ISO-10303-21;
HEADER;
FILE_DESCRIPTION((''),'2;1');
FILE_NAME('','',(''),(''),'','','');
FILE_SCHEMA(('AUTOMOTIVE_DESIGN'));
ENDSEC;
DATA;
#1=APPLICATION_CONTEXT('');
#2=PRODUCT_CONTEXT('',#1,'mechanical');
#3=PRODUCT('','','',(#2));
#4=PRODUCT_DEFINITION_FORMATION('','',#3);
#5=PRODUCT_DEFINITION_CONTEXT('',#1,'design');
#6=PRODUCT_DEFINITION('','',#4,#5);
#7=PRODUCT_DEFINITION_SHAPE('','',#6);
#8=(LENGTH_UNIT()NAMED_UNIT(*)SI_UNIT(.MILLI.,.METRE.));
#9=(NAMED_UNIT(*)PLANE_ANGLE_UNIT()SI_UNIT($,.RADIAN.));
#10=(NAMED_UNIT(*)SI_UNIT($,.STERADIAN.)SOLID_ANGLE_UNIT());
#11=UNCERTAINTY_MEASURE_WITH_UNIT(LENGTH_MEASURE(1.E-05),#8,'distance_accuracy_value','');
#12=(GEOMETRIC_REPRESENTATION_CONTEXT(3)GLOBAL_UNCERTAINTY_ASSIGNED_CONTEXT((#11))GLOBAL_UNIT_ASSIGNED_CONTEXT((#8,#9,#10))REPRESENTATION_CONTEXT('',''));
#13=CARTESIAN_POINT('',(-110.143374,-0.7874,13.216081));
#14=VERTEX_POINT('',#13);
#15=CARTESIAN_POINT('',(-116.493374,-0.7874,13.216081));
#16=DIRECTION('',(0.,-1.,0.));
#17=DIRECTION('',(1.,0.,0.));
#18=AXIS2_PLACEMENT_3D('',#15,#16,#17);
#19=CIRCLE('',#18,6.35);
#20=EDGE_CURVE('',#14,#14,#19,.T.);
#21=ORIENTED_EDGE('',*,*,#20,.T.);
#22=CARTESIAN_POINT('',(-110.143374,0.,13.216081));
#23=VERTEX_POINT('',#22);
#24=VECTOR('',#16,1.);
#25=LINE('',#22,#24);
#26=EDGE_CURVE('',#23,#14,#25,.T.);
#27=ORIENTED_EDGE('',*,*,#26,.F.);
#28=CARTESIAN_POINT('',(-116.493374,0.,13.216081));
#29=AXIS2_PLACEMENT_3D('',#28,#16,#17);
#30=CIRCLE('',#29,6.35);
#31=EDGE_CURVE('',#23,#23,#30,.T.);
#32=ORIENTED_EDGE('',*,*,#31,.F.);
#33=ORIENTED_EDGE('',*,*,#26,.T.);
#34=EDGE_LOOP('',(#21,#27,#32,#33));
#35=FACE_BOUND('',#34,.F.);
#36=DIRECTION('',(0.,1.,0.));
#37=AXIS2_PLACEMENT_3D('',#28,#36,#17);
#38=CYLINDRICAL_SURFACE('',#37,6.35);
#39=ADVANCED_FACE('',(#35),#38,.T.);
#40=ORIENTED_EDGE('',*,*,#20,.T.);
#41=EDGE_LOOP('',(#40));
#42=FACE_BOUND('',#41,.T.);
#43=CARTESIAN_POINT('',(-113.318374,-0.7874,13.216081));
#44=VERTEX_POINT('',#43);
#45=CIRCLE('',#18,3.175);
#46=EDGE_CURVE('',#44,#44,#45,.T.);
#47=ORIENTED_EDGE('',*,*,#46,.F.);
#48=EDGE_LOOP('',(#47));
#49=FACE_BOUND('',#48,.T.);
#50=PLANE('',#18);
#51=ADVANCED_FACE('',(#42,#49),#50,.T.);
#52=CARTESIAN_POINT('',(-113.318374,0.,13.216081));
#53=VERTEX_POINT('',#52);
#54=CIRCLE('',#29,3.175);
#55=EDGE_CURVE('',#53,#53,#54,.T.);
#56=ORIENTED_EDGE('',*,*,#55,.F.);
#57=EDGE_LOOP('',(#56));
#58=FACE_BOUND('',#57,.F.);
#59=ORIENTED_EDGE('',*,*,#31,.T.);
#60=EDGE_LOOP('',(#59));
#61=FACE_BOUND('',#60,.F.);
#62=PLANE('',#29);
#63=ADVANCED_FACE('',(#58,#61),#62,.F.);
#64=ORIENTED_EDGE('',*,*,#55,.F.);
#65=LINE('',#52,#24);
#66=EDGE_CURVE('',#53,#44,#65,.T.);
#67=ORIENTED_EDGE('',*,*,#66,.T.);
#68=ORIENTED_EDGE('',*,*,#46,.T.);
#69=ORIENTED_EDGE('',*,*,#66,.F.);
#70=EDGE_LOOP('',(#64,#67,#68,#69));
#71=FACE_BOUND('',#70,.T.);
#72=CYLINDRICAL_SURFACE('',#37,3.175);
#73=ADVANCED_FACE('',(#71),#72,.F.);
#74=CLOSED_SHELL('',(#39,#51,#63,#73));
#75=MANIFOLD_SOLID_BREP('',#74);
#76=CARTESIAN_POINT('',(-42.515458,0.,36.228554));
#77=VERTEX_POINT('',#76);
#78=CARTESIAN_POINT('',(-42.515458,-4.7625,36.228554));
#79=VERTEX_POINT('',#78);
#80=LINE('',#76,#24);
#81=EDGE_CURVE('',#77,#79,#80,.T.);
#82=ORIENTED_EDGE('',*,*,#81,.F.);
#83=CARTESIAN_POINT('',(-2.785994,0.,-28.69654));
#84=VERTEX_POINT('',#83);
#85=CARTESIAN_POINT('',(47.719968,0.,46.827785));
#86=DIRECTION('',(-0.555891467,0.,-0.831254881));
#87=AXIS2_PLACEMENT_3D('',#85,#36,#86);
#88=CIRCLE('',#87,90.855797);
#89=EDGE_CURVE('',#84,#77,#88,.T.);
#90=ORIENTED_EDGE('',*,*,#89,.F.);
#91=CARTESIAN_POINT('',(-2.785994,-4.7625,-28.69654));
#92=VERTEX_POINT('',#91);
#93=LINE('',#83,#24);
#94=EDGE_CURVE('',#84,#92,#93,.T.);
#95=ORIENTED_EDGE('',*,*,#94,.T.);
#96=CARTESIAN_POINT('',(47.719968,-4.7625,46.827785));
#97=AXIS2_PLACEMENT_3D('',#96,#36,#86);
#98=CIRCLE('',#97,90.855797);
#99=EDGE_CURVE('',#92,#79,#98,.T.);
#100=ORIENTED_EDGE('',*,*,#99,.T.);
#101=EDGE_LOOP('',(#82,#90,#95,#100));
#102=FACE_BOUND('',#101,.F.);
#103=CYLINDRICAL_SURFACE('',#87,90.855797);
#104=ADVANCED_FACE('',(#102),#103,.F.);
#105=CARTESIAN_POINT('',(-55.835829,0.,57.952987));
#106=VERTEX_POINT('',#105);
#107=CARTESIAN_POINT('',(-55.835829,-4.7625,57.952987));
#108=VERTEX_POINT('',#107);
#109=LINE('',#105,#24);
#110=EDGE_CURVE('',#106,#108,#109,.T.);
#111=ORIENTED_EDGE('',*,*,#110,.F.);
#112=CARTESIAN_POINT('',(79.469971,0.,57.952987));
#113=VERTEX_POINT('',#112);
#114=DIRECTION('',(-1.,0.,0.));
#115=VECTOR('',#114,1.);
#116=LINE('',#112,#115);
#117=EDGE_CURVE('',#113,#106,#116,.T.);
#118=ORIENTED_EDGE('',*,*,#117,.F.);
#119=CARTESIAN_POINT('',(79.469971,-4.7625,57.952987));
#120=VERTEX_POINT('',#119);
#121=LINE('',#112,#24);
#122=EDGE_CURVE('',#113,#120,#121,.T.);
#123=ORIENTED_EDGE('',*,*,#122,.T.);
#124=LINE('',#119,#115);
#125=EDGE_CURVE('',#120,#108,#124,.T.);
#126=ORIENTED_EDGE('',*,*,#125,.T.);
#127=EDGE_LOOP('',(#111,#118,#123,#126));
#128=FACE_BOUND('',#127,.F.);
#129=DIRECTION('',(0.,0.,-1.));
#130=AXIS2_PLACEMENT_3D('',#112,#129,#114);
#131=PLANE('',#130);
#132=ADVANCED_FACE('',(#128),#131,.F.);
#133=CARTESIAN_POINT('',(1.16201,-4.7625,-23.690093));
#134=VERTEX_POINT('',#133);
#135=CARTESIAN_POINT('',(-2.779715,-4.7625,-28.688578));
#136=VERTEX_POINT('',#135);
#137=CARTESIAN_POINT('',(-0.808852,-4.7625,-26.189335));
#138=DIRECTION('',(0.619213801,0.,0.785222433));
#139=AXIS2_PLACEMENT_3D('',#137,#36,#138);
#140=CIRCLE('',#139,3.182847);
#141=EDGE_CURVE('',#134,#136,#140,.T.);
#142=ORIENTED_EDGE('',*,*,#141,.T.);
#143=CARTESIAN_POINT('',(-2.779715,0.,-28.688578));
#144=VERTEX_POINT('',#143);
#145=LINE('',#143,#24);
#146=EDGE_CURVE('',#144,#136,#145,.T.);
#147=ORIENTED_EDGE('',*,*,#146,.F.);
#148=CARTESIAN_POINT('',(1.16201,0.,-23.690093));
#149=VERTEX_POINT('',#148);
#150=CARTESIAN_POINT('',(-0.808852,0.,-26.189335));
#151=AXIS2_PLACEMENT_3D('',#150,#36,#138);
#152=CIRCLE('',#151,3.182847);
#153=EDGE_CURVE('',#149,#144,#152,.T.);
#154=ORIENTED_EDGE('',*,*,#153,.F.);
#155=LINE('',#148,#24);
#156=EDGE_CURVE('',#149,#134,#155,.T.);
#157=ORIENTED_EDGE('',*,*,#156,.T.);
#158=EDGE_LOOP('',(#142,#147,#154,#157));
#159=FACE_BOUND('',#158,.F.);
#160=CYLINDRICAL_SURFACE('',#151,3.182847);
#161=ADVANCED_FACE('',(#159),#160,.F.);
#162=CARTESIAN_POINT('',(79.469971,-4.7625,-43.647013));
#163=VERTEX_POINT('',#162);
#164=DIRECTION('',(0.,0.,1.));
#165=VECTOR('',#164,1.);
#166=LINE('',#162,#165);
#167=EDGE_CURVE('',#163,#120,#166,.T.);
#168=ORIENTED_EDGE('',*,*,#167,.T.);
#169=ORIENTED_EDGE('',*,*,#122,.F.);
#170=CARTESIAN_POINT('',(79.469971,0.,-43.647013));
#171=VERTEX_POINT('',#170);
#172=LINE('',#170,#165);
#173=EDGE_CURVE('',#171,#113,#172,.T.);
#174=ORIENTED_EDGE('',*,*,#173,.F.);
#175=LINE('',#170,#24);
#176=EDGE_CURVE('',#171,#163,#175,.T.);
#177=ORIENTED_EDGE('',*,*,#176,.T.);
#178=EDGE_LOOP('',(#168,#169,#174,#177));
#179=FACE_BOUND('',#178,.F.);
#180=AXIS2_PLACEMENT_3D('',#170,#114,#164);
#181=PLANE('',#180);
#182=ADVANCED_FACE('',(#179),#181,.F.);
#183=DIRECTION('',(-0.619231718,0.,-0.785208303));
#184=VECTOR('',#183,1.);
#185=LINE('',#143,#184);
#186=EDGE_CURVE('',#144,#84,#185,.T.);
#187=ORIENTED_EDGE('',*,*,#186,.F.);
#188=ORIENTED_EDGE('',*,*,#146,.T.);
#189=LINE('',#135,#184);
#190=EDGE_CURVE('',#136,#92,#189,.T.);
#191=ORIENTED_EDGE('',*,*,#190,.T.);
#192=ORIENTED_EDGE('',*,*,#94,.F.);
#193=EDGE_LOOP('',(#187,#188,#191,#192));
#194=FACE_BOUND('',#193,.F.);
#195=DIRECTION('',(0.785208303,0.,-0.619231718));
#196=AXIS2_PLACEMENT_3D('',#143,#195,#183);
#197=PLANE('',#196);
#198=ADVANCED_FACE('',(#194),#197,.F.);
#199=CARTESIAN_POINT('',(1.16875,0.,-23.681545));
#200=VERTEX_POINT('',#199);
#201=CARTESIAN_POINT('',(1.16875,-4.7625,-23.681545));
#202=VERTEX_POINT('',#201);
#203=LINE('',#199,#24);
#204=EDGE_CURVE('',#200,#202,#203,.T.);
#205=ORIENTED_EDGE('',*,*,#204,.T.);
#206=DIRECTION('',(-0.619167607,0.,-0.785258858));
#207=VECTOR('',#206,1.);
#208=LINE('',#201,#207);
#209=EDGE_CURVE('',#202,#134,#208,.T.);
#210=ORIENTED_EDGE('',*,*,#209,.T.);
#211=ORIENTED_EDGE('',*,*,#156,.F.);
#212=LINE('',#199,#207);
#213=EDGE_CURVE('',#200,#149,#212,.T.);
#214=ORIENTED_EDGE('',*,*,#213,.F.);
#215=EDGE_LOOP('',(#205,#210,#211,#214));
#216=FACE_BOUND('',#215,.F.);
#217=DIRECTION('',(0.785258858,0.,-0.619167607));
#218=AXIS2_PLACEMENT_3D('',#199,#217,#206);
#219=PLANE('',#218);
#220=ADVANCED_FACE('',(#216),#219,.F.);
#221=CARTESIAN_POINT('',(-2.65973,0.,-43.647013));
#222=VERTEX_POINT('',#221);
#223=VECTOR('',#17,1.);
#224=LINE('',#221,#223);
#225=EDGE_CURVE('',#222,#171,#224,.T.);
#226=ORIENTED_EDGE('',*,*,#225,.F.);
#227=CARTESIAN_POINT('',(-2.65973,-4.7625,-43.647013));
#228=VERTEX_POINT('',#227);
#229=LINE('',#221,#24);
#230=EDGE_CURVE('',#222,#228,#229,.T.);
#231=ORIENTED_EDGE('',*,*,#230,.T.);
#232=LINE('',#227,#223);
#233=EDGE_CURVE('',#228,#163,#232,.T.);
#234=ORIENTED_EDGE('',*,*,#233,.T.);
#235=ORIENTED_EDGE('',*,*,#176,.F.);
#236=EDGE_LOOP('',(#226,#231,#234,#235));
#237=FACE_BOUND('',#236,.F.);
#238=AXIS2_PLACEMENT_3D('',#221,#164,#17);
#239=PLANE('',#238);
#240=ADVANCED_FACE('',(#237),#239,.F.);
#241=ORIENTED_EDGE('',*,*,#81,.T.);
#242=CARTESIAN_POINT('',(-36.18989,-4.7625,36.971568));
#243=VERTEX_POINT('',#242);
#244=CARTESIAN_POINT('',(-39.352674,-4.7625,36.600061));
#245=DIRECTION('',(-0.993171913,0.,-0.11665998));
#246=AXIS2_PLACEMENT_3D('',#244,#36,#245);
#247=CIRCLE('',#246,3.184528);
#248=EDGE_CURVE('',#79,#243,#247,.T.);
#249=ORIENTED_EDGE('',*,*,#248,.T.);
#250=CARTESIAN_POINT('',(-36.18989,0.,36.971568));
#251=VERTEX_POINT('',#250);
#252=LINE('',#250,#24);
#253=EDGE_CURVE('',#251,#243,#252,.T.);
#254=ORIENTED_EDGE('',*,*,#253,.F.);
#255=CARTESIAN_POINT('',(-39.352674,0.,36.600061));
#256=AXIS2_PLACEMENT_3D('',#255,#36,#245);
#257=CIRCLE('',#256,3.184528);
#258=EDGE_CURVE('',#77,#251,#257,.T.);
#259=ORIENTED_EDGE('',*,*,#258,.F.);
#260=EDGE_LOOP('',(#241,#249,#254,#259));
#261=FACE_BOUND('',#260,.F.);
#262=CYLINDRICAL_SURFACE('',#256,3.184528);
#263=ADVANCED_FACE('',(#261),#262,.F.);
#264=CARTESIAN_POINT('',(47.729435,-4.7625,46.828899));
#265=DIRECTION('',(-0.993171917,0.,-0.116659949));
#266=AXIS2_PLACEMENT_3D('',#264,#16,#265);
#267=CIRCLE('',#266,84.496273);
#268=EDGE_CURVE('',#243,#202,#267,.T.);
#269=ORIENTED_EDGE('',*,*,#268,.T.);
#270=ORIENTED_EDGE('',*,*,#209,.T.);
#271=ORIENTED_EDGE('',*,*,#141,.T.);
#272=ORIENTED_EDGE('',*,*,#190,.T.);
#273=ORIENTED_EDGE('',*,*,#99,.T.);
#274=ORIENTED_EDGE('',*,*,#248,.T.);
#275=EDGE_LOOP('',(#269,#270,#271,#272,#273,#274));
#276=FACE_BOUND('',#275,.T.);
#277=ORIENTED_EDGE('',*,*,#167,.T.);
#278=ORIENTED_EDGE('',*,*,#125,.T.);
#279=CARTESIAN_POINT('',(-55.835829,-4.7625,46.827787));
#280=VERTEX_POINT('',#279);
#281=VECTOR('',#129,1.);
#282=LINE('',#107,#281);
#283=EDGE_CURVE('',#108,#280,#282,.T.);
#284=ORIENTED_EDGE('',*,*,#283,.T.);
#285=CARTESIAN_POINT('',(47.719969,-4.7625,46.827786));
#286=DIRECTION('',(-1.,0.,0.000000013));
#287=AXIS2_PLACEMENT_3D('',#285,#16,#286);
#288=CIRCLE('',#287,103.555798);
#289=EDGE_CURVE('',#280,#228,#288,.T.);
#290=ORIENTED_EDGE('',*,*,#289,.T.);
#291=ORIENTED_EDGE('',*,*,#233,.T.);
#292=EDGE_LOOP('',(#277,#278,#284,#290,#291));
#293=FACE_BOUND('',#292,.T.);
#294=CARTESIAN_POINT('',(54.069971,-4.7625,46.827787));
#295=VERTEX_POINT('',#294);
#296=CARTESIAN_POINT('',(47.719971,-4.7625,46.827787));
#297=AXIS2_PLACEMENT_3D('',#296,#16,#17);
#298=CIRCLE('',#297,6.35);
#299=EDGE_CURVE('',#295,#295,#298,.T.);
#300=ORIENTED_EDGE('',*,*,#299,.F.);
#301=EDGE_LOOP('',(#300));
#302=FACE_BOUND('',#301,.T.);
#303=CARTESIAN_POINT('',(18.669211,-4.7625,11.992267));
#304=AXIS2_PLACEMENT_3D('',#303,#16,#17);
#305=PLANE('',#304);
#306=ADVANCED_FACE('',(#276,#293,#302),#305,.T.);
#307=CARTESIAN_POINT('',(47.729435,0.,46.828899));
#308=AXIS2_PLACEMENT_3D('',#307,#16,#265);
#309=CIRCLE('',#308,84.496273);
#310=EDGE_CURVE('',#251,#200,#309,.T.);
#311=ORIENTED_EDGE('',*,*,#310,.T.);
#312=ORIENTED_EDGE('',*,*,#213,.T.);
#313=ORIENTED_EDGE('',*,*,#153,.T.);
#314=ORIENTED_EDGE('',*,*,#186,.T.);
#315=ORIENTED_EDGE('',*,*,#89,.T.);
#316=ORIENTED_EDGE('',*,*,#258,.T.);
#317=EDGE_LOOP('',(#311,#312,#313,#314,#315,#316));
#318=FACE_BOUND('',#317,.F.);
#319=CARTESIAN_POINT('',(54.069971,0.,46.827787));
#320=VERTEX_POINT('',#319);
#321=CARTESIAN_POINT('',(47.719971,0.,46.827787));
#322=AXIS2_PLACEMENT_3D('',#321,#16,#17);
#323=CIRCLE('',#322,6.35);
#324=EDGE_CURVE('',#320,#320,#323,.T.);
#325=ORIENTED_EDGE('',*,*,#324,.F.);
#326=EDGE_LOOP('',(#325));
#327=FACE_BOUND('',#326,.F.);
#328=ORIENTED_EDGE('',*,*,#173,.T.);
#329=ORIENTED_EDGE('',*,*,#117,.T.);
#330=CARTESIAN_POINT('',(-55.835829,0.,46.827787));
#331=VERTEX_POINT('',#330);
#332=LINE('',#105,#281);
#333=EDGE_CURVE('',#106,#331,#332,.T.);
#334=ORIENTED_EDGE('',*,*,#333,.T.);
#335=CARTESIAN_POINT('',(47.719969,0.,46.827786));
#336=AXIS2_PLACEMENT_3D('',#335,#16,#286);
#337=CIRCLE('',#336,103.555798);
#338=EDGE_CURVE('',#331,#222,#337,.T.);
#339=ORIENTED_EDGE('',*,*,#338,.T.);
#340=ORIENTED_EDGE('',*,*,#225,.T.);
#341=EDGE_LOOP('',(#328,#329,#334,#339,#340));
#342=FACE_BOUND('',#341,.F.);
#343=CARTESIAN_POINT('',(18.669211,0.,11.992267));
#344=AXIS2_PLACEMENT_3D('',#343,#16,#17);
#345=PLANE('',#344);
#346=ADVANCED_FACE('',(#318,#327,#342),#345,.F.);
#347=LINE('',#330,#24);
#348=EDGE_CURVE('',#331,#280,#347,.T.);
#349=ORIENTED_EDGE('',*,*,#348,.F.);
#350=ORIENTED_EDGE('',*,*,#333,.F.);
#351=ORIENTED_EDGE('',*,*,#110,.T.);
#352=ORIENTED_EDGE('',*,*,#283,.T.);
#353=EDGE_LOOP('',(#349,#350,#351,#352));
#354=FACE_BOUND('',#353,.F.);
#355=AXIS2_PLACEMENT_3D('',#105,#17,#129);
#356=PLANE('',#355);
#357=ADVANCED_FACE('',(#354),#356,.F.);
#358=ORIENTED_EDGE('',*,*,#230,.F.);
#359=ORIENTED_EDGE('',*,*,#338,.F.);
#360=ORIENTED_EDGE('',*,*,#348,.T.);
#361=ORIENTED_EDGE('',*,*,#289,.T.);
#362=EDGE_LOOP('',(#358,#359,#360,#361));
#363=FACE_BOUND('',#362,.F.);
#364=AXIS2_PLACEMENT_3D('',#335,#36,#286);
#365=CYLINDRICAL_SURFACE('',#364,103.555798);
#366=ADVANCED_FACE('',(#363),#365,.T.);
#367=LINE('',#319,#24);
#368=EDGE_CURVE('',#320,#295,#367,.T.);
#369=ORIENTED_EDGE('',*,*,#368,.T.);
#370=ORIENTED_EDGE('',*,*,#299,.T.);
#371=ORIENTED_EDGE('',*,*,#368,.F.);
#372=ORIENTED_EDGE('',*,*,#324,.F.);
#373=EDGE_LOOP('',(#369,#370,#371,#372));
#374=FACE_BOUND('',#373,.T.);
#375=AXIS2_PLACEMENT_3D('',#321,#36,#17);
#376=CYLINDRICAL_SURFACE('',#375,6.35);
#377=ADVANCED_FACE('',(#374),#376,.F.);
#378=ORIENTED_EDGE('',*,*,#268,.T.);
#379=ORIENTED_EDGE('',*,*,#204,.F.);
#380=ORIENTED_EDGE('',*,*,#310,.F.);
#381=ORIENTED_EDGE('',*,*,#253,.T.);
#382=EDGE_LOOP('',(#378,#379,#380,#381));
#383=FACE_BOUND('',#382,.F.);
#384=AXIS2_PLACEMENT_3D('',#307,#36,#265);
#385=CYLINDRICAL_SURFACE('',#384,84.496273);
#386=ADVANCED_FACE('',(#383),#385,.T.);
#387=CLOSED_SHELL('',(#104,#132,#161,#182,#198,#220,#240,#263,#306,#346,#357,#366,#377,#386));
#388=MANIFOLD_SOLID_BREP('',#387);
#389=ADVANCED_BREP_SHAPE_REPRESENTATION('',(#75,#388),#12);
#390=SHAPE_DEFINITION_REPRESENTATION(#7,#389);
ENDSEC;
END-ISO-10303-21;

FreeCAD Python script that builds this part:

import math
import FreeCAD as App
import Part
import Sketcher

V = App.Vector
Q = App.Units.Quantity

doc = App.newDocument("Part")
params = doc.addObject("Spreadsheet::Sheet", "Params")
for row, (alias, value) in enumerate([
    ("sketch1_diameter", "0.5 in"),
    ("sketch1_height", "4 in"),
    ("sketch1_radius", "4.0769999 in"),
    ("sketch1_radius2", "3.5769999 in"),
    ("sketch1_width", "5.327 in"),
    ("pad1_length", "0.1875 in"),
    ("sketch2_diameter", "0.5 in"),
    ("sketch2_diameter2", "0.25 in"),
    ("pad2_length", "0.031 in"),
], start=1):
    params.set(f"A{row}", alias)
    params.set(f"B{row}", "=" + value)
    params.setAlias(f"B{row}", alias)

body = doc.addObject("PartDesign::Body", "Body")

# Sketch on XZ plane
sketch1 = body.newObject("Sketcher::SketchObject", "Sketch")
sketch1.AttachmentSupport = (doc.getObject("XZ_Plane"), [""])
sketch1.MapMode = "FlatFace"
sketch1.addGeometry([
    Part.LineSegment(V(-2.65973, -43.647013, 0), V(79.469971, -43.647013, 0)),  # 0
    Part.LineSegment(V(79.469971, -43.647013, 0), V(79.469971, 57.952987, 0)),  # 1
    Part.LineSegment(V(79.469971, 57.952987, 0), V(-55.835829, 57.952987, 0)),  # 2
    Part.LineSegment(V(-55.835829, 57.952987, 0), V(-55.835829, 46.827787, 0)),  # 3
    Part.ArcOfCircle(Part.Circle(V(47.719969, 46.827786, 0), V(0, 0, 1), 103.555798), math.radians(179.999999), math.radians(240.88933)),  # 4
    Part.LineSegment(V(-2.779715, -28.688578, 0), V(-2.785994, -28.69654, 0)),  # 5
    Part.ArcOfCircle(Part.Circle(V(47.719968, 46.827785, 0), V(0, 0, 1), 90.855797), math.radians(-173.300624), math.radians(-123.772139)),  # 6
    Part.ArcOfCircle(Part.Circle(V(-39.352674, 36.600061, 0), V(0, 0, 1), 3.184528), math.radians(6.699379), math.radians(186.699379)),  # 7
    Part.ArcOfCircle(Part.Circle(V(47.729435, 46.828899, 0), V(0, 0, 1), 84.496273), math.radians(-173.300622), math.radians(-123.438276)),  # 8
    Part.LineSegment(V(1.16875, -23.681545, 0), V(1.16201, -23.690093, 0)),  # 9
    Part.ArcOfCircle(Part.Circle(V(-0.808852, -26.189335, 0), V(0, 0, 1), 3.182847), math.radians(-128.258745), math.radians(51.741255)),  # 10
    Part.Circle(V(47.719971, 46.827787, 0), V(0, 0, 1), 6.35),  # 11
], False)
sketch1.addConstraint([
    Sketcher.Constraint("Coincident", 0, 2, 1, 1),
    Sketcher.Constraint("Coincident", 1, 2, 2, 1),
    Sketcher.Constraint("Coincident", 2, 2, 3, 1),
    Sketcher.Constraint("Tangent", 3, 2, 4, 1),
    Sketcher.Constraint("Coincident", 4, 2, 0, 1),
    Sketcher.Constraint("Coincident", 5, 2, 6, 2),
    Sketcher.Constraint("Tangent", 6, 1, 7, 2),
    Sketcher.Constraint("Tangent", 7, 1, 8, 1),
    Sketcher.Constraint("Coincident", 8, 2, 9, 1),
    Sketcher.Constraint("Coincident", 9, 2, 10, 2),
    Sketcher.Constraint("Coincident", 10, 1, 5, 1),
    Sketcher.Constraint("Horizontal", 0),
    Sketcher.Constraint("Vertical", 1),
    Sketcher.Constraint("Horizontal", 2),
    Sketcher.Constraint("Vertical", 3),
    Sketcher.Constraint("Coincident", 6, 3, 4, 3),
    Sketcher.Constraint("Coincident", 11, 3, 4, 3),
    Sketcher.Constraint("Diameter", 11, Q("0.5 in")),
    Sketcher.Constraint("DistanceY", 1, 1, 1, 2, Q("4 in")),
    Sketcher.Constraint("Radius", 4, Q("4.0769999 in")),
    Sketcher.Constraint("Radius", 6, Q("3.5769999 in")),
    Sketcher.Constraint("DistanceX", 2, 2, 2, 1, Q("5.327 in")),
    Sketcher.Constraint("DistanceY", 3, 2, 3, 1, Q("0.438 in")),
    Sketcher.Constraint("Radius", 7, 3.184528),
    Sketcher.Constraint("Radius", 8, 84.496273),
    Sketcher.Constraint("Radius", 10, 3.182847),
    Sketcher.Constraint("DistanceY", -1, 1, 8, 3, 46.828899),
    Sketcher.Constraint("DistanceY", 5, 2, 7, 3, 65.296601),
    Sketcher.Constraint("DistanceX", 7, 1, 9, 2, 37.3519),
    Sketcher.Constraint("Distance", 5, 0.01014),
    Sketcher.Constraint("DistanceX", -1, 1, 4, 3, 47.719969),
    Sketcher.Constraint("DistanceY", -1, 1, 7, 3, 36.600061),
    Sketcher.Constraint("DistanceX", 6, 1, -1, 1, 42.515458),
    Sketcher.Constraint("DistanceX", -1, 1, 8, 2, 1.16875),
    Sketcher.Constraint("DistanceX", 7, 3, 10, 3, 38.543821),
    Sketcher.Constraint("DistanceX", 5, 2, 10, 1, 0.006279),
])
sketch1.setExpression("Constraints[17]", "Params.sketch1_diameter")
sketch1.setExpression("Constraints[18]", "Params.sketch1_height")
sketch1.setExpression("Constraints[19]", "Params.sketch1_radius")
sketch1.setExpression("Constraints[20]", "Params.sketch1_radius2")
sketch1.setExpression("Constraints[21]", "Params.sketch1_width")
pad1 = body.newObject("PartDesign::Pad", "Pad")
pad1.Profile = sketch1
pad1.setExpression("Length", "Params.pad1_length")
body2 = doc.addObject("PartDesign::Body", "Body001")

# Sketch on XZ plane
sketch2 = body2.newObject("Sketcher::SketchObject", "Sketch001")
sketch2.AttachmentSupport = (doc.getObject("XZ_Plane001"), [""])
sketch2.MapMode = "FlatFace"
sketch2.addGeometry([
    Part.Circle(V(-116.5, 13.2, 0), V(0, 0, 1), 6.3),
    Part.Circle(V(-116.5, 13.2, 0), V(0, 0, 1), 3.2),
], False)
sketch2.addConstraint([
    Sketcher.Constraint("Coincident", 1, 3, 0, 3),
    Sketcher.Constraint("Diameter", 0, Q("0.5 in")),
    Sketcher.Constraint("Diameter", 1, Q("0.25 in")),
    Sketcher.Constraint("DistanceY", -1, 1, 0, 3, 13.216081),
    Sketcher.Constraint("DistanceX", 0, 3, -1, 1, 116.493374),
])
sketch2.setExpression("Constraints[1]", "Params.sketch2_diameter")
sketch2.setExpression("Constraints[2]", "Params.sketch2_diameter2")
pad2 = body2.newObject("PartDesign::Pad", "Pad001")
pad2.Profile = sketch2
pad2.setExpression("Length", "Params.pad2_length")

doc.recompute()
